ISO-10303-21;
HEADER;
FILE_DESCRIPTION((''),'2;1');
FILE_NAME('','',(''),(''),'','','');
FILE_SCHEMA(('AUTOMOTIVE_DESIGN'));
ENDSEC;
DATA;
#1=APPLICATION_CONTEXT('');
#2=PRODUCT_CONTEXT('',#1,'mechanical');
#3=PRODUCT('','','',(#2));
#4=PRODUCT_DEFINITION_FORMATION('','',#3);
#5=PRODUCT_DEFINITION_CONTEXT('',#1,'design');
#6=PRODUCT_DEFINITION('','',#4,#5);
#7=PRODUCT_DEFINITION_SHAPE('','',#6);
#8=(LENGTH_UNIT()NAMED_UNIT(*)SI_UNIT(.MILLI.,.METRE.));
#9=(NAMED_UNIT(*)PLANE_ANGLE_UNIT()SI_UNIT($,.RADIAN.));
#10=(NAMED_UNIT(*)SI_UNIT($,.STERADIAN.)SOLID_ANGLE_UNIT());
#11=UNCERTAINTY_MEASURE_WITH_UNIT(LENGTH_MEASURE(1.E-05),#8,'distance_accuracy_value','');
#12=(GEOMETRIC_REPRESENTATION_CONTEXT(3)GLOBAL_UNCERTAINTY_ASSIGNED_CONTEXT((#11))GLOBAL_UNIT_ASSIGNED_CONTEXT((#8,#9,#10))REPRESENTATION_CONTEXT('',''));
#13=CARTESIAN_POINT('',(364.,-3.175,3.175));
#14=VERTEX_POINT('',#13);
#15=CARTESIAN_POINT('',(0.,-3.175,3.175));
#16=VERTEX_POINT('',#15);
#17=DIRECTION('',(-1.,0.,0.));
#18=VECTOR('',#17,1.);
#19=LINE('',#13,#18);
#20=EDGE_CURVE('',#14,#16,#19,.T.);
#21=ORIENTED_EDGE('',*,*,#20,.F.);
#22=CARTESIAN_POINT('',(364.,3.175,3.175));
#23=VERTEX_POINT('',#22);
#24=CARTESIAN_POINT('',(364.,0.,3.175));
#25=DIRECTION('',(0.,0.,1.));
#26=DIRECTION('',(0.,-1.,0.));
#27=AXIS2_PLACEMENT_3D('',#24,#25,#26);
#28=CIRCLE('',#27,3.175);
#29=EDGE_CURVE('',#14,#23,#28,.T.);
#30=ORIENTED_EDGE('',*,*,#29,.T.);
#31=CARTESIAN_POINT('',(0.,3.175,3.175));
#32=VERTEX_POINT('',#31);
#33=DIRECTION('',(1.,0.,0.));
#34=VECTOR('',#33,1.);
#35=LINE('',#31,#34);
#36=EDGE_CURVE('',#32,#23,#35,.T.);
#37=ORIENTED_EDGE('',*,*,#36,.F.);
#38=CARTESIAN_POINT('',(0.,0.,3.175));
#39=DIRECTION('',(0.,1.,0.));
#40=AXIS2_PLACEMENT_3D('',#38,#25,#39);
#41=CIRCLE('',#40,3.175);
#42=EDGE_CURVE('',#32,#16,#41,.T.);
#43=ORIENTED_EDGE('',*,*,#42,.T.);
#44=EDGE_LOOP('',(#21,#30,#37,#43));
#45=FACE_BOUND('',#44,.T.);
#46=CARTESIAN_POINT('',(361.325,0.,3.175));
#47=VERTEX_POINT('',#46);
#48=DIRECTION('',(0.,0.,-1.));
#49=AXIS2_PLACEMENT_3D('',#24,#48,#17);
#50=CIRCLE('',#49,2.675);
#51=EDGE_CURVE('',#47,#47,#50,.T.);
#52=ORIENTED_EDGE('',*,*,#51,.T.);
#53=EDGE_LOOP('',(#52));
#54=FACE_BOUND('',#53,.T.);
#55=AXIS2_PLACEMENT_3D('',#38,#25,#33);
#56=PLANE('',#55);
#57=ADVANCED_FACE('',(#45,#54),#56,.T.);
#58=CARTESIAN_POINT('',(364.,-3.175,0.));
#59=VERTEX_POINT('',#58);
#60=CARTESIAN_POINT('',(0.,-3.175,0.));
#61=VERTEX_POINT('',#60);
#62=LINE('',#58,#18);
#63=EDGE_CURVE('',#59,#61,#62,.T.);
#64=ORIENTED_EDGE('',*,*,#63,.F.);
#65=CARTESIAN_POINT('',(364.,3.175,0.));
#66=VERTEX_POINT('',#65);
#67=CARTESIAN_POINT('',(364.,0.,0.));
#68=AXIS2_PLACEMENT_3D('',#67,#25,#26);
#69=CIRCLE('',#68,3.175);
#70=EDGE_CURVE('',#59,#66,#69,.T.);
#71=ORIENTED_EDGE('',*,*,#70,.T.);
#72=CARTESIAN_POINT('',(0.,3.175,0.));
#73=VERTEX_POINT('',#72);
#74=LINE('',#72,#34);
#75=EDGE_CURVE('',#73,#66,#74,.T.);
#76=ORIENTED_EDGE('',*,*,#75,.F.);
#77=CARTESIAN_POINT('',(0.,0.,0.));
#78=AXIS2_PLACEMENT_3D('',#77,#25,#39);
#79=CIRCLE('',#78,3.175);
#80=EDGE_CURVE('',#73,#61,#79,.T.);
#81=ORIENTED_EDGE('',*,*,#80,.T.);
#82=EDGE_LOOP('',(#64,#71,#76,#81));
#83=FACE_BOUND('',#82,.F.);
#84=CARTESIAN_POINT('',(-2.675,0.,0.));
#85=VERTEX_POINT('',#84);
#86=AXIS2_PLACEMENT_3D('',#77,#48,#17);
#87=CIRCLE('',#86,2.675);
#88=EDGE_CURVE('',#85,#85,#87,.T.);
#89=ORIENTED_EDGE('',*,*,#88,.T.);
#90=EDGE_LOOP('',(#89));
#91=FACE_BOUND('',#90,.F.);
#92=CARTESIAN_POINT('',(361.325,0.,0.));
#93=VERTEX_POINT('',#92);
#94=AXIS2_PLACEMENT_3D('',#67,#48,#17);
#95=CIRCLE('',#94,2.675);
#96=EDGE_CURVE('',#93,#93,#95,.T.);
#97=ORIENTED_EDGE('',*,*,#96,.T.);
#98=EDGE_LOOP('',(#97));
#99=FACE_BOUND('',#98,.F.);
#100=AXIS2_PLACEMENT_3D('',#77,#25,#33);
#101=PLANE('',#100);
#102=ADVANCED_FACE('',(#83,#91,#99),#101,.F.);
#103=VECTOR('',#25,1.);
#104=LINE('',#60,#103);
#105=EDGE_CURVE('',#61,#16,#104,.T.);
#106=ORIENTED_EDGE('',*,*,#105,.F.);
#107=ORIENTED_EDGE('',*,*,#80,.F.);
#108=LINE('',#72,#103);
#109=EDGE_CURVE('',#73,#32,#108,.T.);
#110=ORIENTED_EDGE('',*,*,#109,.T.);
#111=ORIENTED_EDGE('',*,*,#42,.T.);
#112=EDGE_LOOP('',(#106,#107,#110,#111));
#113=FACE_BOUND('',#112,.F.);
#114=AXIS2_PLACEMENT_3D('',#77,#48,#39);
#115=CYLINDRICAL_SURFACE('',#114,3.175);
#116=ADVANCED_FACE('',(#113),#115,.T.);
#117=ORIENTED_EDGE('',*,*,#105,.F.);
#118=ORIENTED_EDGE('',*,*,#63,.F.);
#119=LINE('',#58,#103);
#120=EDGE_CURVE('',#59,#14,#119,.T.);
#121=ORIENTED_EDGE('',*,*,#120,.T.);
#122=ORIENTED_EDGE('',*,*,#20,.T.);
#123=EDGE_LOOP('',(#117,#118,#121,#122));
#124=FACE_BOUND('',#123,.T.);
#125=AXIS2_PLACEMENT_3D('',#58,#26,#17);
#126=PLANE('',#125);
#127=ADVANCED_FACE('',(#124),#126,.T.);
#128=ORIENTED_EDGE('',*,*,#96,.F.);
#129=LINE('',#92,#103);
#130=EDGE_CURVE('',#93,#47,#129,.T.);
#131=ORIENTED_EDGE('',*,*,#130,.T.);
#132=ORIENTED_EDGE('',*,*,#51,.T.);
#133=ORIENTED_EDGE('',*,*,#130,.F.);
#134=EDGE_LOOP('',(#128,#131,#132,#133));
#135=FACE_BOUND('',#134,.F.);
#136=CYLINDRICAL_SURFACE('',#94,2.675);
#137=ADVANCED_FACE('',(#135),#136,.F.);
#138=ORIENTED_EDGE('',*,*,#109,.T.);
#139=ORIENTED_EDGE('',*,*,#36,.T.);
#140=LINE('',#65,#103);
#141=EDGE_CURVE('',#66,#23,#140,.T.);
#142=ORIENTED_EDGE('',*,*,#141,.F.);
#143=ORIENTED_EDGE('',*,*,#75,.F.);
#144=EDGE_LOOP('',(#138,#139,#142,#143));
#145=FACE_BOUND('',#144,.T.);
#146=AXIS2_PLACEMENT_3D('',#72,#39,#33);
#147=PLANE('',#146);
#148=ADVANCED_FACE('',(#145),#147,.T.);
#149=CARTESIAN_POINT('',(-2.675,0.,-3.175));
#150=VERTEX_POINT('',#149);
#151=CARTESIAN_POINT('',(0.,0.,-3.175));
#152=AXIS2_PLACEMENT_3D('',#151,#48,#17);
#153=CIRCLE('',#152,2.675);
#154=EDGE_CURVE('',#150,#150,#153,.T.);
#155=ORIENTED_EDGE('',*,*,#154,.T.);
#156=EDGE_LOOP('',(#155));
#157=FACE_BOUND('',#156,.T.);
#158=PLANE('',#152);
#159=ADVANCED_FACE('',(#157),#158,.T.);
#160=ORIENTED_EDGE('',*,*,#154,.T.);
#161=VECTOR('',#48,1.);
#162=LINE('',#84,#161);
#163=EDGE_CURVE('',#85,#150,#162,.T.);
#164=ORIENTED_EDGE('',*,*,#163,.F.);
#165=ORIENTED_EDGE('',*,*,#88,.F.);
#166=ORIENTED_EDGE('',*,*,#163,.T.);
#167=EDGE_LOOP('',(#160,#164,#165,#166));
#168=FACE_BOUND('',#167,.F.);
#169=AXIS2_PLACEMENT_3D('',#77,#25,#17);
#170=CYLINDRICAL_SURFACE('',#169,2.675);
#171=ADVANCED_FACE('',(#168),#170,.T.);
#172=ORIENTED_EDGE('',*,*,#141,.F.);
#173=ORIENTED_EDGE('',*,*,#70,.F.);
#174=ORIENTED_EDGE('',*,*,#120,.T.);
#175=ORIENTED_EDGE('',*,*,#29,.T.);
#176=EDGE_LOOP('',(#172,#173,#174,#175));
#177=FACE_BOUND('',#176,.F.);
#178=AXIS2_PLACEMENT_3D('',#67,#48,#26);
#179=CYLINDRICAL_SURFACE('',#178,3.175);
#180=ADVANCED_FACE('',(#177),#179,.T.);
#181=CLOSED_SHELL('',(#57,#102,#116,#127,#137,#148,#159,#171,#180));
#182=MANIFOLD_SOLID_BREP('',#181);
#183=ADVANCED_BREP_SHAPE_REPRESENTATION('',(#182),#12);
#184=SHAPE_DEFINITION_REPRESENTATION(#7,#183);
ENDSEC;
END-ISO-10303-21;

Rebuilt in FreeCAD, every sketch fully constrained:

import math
import FreeCAD as App
import Part
import Sketcher
from FreeCAD import Vector
Q = App.Units.Quantity

doc = App.newDocument("Part")
body = doc.addObject("PartDesign::Body", "Body")

# Sketch on XY plane
sketch1 = doc.addObject("Sketcher::SketchObject", "Sketch")
body.addObject(sketch1)
sketch1.AttachmentSupport = (doc.XY_Plane, [""])
sketch1.MapMode = "FlatFace"
sketch1.addGeometry(Part.LineSegment(Vector(364, 3.175, 0), Vector(0, 3.175, 0)), False)
sketch1.addGeometry(Part.ArcOfCircle(Part.Circle(Vector(0, 0, 0), Vector(0, 0, 1), 3.175), math.radians(90), math.radians(270)), False)
sketch1.addGeometry(Part.LineSegment(Vector(0, -3.175, 0), Vector(364, -3.175, 0)), False)
sketch1.addGeometry(Part.ArcOfCircle(Part.Circle(Vector(364, 0, 0), Vector(0, 0, 1), 3.175), math.radians(-90), math.radians(90)), False)
sketch1.addConstraint(Sketcher.Constraint("Tangent", 0, 2, 1, 1))
sketch1.addConstraint(Sketcher.Constraint("Tangent", 1, 2, 2, 1))
sketch1.addConstraint(Sketcher.Constraint("Tangent", 2, 2, 3, 1))
sketch1.addConstraint(Sketcher.Constraint("Tangent", 3, 2, 0, 1))
sketch1.addConstraint(Sketcher.Constraint("Horizontal", 0))
sketch1.addConstraint(Sketcher.Constraint("Horizontal", 2))
sketch1.addConstraint(Sketcher.Constraint("Coincident", 1, 3, -1, 1))
sketch1.addConstraint(Sketcher.Constraint("Radius", 1, Q("0.125 in")))
sketch1.addConstraint(Sketcher.Constraint("DistanceX", 0, 2, 0, 1, Q("14.3307 in")))
pad1 = doc.addObject("PartDesign::Pad", "Pad")
body.addObject(pad1)
pad1.Profile = sketch1
pad1.Length = Q("0.125 in")

# Sketch on XY plane
sketch2 = doc.addObject("Sketcher::SketchObject", "Sketch001")
body.addObject(sketch2)
sketch2.AttachmentSupport = (doc.XY_Plane, [""])
sketch2.MapMode = "FlatFace"
sketch2.addGeometry(Part.Circle(Vector(0, 0, 0), Vector(0, 0, 1), 2.675), False)
sketch2.addConstraint(Sketcher.Constraint("Coincident", 0, 3, -1, 1))
sketch2.addConstraint(Sketcher.Constraint("Diameter", 0, 5.35))
pad2 = doc.addObject("PartDesign::Pad", "Pad001")
body.addObject(pad2)
pad2.Profile = sketch2
pad2.Length = Q("0.125 in")
pad2.Reversed = True

# Sketch on XY plane
sketch3 = doc.addObject("Sketcher::SketchObject", "Sketch002")
body.addObject(sketch3)
sketch3.AttachmentSupport = (doc.XY_Plane, [""])
sketch3.MapMode = "FlatFace"
sketch3.addGeometry(Part.Circle(Vector(364, 0, 0), Vector(0, 0, 1), 2.675), False)
sketch3.addConstraint(Sketcher.Constraint("PointOnObject", 0, 3, -1))
sketch3.addConstraint(Sketcher.Constraint("Diameter", 0, 5.35))
sketch3.addConstraint(Sketcher.Constraint("DistanceX", -1, 1, 0, 3, Q("14.3307 in")))
pocket1 = doc.addObject("PartDesign::Pocket", "Pocket")
body.addObject(pocket1)
pocket1.Profile = sketch3
pocket1.Length = Q("0.125 in")
pocket1.Reversed = True

doc.recompute()
